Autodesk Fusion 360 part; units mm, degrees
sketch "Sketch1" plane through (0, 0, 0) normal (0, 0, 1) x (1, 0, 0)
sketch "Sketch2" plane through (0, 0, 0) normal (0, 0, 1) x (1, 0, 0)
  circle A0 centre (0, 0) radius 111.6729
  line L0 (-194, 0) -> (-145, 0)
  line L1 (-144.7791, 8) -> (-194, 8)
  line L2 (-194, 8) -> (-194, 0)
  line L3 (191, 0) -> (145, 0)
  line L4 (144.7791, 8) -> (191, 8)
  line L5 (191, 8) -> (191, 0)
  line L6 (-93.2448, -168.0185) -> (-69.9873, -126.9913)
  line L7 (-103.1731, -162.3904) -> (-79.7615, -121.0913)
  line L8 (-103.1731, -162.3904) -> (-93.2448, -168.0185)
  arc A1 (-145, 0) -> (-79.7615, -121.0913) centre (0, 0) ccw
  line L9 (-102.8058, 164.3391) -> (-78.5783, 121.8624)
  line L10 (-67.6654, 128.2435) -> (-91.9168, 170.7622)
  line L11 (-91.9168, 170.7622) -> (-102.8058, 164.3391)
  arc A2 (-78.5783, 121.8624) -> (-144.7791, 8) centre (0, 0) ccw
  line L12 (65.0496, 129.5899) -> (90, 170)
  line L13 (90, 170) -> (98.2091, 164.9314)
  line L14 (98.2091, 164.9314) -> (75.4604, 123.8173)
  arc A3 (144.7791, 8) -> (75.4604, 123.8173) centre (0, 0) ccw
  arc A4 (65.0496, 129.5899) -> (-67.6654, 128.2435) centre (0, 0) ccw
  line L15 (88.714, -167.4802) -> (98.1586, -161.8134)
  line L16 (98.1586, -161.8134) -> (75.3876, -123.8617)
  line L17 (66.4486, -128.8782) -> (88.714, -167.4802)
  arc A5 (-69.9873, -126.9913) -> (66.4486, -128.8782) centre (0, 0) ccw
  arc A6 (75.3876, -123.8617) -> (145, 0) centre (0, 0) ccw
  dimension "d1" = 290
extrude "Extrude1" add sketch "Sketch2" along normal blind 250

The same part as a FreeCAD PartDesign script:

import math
import FreeCAD as App
import Part
import Sketcher

V = App.Vector
Q = App.Units.Quantity

doc = App.newDocument("Part")
params = doc.addObject("Spreadsheet::Sheet", "Params")
for row, (alias, value) in enumerate([
    ("sketch1_radius", "145 mm"),
    ("sketch1_width", "49 mm"),
    ("sketch1_width2", "46 mm"),
    ("sketch1_height", "8 mm"),
    ("pad1_length", "250 mm"),
], start=1):
    params.set(f"A{row}", alias)
    params.set(f"B{row}", "=" + value)
    params.setAlias(f"B{row}", alias)

body = doc.addObject("PartDesign::Body", "Body")

sketch1 = body.newObject("Sketcher::SketchObject", "Sketch")
sketch1.AttachmentSupport = (doc.getObject("XY_Plane"), [""])
sketch1.MapMode = "FlatFace"
sketch1.addGeometry(Part.LineSegment(V(-194, 8, 0), V(-194, 0, 0)), False)
sketch1.addGeometry(Part.LineSegment(V(-194, 0, 0), V(-145, 0, 0)), False)
sketch1.addGeometry(Part.ArcOfCircle(Part.Circle(V(0, 0, 0), V(0, 0, 1), 145), math.radians(180), math.radians(237)), False)
sketch1.addGeometry(Part.LineSegment(V(-80, -121, 0), V(-103, -162, 0)), False)
sketch1.addGeometry(Part.LineSegment(V(-103, -162, 0), V(-93, -168, 0)), False)
sketch1.addGeometry(Part.LineSegment(V(-93, -168, 0), V(-70, -127, 0)), False)
sketch1.addGeometry(Part.ArcOfCircle(Part.Circle(V(0, 0, 0), V(0, 0, 1), 145), math.radians(-119), math.radians(-63)), False)
sketch1.addGeometry(Part.LineSegment(V(66, -129, 0), V(89, -167, 0)), False)
sketch1.addGeometry(Part.LineSegment(V(89, -167, 0), V(98, -162, 0)), False)
sketch1.addGeometry(Part.LineSegment(V(98, -162, 0), V(75, -124, 0)), False)
sketch1.addGeometry(Part.ArcOfCircle(Part.Circle(V(0, 0, 0), V(0, 0, 1), 145), math.radians(-59), math.radians(0)), False)
sketch1.addGeometry(Part.LineSegment(V(145, 0, 0), V(191, 0, 0)), False)
sketch1.addGeometry(Part.LineSegment(V(191, 0, 0), V(191, 8, 0)), False)
sketch1.addGeometry(Part.LineSegment(V(191, 8, 0), V(145, 8, 0)), False)
sketch1.addGeometry(Part.ArcOfCircle(Part.Circle(V(0, 0, 0), V(0, 0, 1), 145), math.radians(3), math.radians(59)), False)
sketch1.addGeometry(Part.LineSegment(V(75, 124, 0), V(98, 165, 0)), False)
sketch1.addGeometry(Part.LineSegment(V(98, 165, 0), V(90, 170, 0)), False)
sketch1.addGeometry(Part.LineSegment(V(90, 170, 0), V(65, 130, 0)), False)
sketch1.addGeometry(Part.ArcOfCircle(Part.Circle(V(0, 0, 0), V(0, 0, 1), 145), math.radians(63), math.radians(118)), False)
sketch1.addGeometry(Part.LineSegment(V(-68, 128, 0), V(-92, 171, 0)), False)
sketch1.addGeometry(Part.LineSegment(V(-92, 171, 0), V(-103, 164, 0)), False)
sketch1.addGeometry(Part.LineSegment(V(-103, 164, 0), V(-79, 122, 0)), False)
sketch1.addGeometry(Part.ArcOfCircle(Part.Circle(V(0, 0, 0), V(0, 0, 1), 145), math.radians(123), math.radians(177)), False)
sketch1.addGeometry(Part.LineSegment(V(-145, 8, 0), V(-194, 8, 0)), False)
sketch1.addGeometry(Part.Circle(V(0, 0, 0), V(0, 0, 1), 112), False)
sketch1.addConstraint(Sketcher.Constraint("Coincident", 0, 2, 1, 1))
sketch1.addConstraint(Sketcher.Constraint("Coincident", 1, 2, 2, 1))
sketch1.addConstraint(Sketcher.Constraint("Coincident", 2, 2, 3, 1))
sketch1.addConstraint(Sketcher.Constraint("Coincident", 3, 2, 4, 1))
sketch1.addConstraint(Sketcher.Constraint("Coincident", 4, 2, 5, 1))
sketch1.addConstraint(Sketcher.Constraint("Coincident", 5, 2, 6, 1))
sketch1.addConstraint(Sketcher.Constraint("Coincident", 6, 2, 7, 1))
sketch1.addConstraint(Sketcher.Constraint("Coincident", 7, 2, 8, 1))
sketch1.addConstraint(Sketcher.Constraint("Coincident", 8, 2, 9, 1))
sketch1.addConstraint(Sketcher.Constraint("Coincident", 9, 2, 10, 1))
sketch1.addConstraint(Sketcher.Constraint("Coincident", 10, 2, 11, 1))
sketch1.addConstraint(Sketcher.Constraint("Coincident", 11, 2, 12, 1))
sketch1.addConstraint(Sketcher.Constraint("Coincident", 12, 2, 13, 1))
sketch1.addConstraint(Sketcher.Constraint("Coincident", 13, 2, 14, 1))
sketch1.addConstraint(Sketcher.Constraint("Coincident", 14, 2, 15, 1))
sketch1.addConstraint(Sketcher.Constraint("Coincident", 15, 2, 16, 1))
sketch1.addConstraint(Sketcher.Constraint("Coincident", 16, 2, 17, 1))
sketch1.addConstraint(Sketcher.Constraint("Coincident", 17, 2, 18, 1))
sketch1.addConstraint(Sketcher.Constraint("Coincident", 18, 2, 19, 1))
sketch1.addConstraint(Sketcher.Constraint("Coincident", 19, 2, 20, 1))
sketch1.addConstraint(Sketcher.Constraint("Coincident", 20, 2, 21, 1))
sketch1.addConstraint(Sketcher.Constraint("Coincident", 21, 2, 22, 1))
sketch1.addConstraint(Sketcher.Constraint("Coincident", 22, 2, 23, 1))
sketch1.addConstraint(Sketcher.Constraint("Coincident", 23, 2, 0, 1))
sketch1.addConstraint(Sketcher.Constraint("Vertical", 0))
sketch1.addConstraint(Sketcher.Constraint("Horizontal", 1))
sketch1.addConstraint(Sketcher.Constraint("Horizontal", 11))
sketch1.addConstraint(Sketcher.Constraint("Vertical", 12))
sketch1.addConstraint(Sketcher.Constraint("Horizontal", 13))
sketch1.addConstraint(Sketcher.Constraint("Horizontal", 23))
sketch1.addConstraint(Sketcher.Constraint("Coincident", 2, 3, -1, 1))
sketch1.addConstraint(Sketcher.Constraint("Coincident", 6, 3, -1, 1))
sketch1.addConstraint(Sketcher.Constraint("Coincident", 10, 3, -1, 1))
sketch1.addConstraint(Sketcher.Constraint("Coincident", 14, 3, -1, 1))
sketch1.addConstraint(Sketcher.Constraint("Coincident", 18, 3, -1, 1))
sketch1.addConstraint(Sketcher.Constraint("Coincident", 22, 3, -1, 1))
sketch1.addConstraint(Sketcher.Constraint("Coincident", 24, 3, -1, 1))
sketch1.addConstraint(Sketcher.Constraint("Equal", 2, 6))
sketch1.addConstraint(Sketcher.Constraint("Equal", 6, 10))
sketch1.addConstraint(Sketcher.Constraint("Equal", 10, 14))
sketch1.addConstraint(Sketcher.Constraint("Equal", 14, 18))
sketch1.addConstraint(Sketcher.Constraint("Equal", 18, 22))
sketch1.addConstraint(Sketcher.Constraint("PointOnObject", 0, 2, -1))
sketch1.addConstraint(Sketcher.Constraint("PointOnObject", 10, 2, -1))
sketch1.addConstraint(Sketcher.Constraint("Perpendicular", 3, 4))
sketch1.addConstraint(Sketcher.Constraint("Perpendicular", 4, 5))
sketch1.addConstraint(Sketcher.Constraint("Perpendicular", 8, 9))
sketch1.addConstraint(Sketcher.Constraint("Perpendicular", 16, 17))
sketch1.addConstraint(Sketcher.Constraint("Parallel", 19, 21))
sketch1.addConstraint(Sketcher.Constraint("Horizontal", 13, 2, 22, 2))
sketch1.addConstraint(Sketcher.Constraint("Radius", 2, 145.0))
sketch1.addConstraint(Sketcher.Constraint("DistanceX", 1, 1, 1, 2, 49.0))
sketch1.addConstraint(Sketcher.Constraint("DistanceX", 11, 1, 11, 2, 46.0))
sketch1.addConstraint(Sketcher.Constraint("DistanceY", 0, 2, 0, 1, 8.0))
sketch1.addConstraint(Sketcher.Constraint("DistanceX", -1, 1, 16, 2, 90.0))
sketch1.addConstraint(Sketcher.Constraint("DistanceY", -1, 1, 16, 2, 170.0))
sketch1.addConstraint(Sketcher.Constraint("Angle", 19, Q("119.6991 deg")))
sketch1.addConstraint(Sketcher.Constraint("Diameter", 24, 223.3458))
sketch1.addConstraint(Sketcher.Constraint("DistanceY", 5, 2, 2, 2, 5.9))
sketch1.addConstraint(Sketcher.Constraint("DistanceY", -1, 1, 17, 2, 129.59))
sketch1.addConstraint(Sketcher.Constraint("DistanceX", 6, 2, 8, 2, 31.71))
sketch1.addConstraint(Sketcher.Constraint("DistanceX", 2, 2, 8, 2, 177.92))
sketch1.addConstraint(Sketcher.Constraint("DistanceX", 15, 2, 13, 2, 46.57))
sketch1.addConstraint(Sketcher.Constraint("Distance", 7, 44.563))
sketch1.addConstraint(Sketcher.Constraint("Distance", 9, 44.259))
sketch1.addConstraint(Sketcher.Constraint("Distance", 15, 46.988))
sketch1.addConstraint(Sketcher.Constraint("DistanceX", 3, 2, -1, 1, 103.173))
sketch1.addConstraint(Sketcher.Constraint("DistanceX", -1, 1, 7, 2, 88.714))
sketch1.addConstraint(Sketcher.Constraint("DistanceY", -1, 1, 20, 2, 164.339))
sketch1.addConstraint(Sketcher.Constraint("DistanceY", 3, 2, 2, 2, 41.299))
sketch1.addConstraint(Sketcher.Constraint("DistanceY", 4, 2, 3, 2, 5.628))
sketch1.addConstraint(Sketcher.Constraint("DistanceX", 18, 2, 17, 2, 132.715))
sketch1.addConstraint(Sketcher.Constraint("DistanceX", 20, 2, 19, 2, 10.889))
sketch1.addConstraint(Sketcher.Constraint("DistanceY", 20, 2, 19, 2, 6.423))
sketch1.setExpression("Constraints[50]", "Params.sketch1_radius")
sketch1.setExpression("Constraints[51]", "Params.sketch1_width")
sketch1.setExpression("Constraints[52]", "Params.sketch1_width2")
sketch1.setExpression("Constraints[53]", "Params.sketch1_height")
pad1 = body.newObject("PartDesign::Pad", "Pad")
pad1.Profile = sketch1
pad1.setExpression("Length", "Params.pad1_length")

doc.recompute()
